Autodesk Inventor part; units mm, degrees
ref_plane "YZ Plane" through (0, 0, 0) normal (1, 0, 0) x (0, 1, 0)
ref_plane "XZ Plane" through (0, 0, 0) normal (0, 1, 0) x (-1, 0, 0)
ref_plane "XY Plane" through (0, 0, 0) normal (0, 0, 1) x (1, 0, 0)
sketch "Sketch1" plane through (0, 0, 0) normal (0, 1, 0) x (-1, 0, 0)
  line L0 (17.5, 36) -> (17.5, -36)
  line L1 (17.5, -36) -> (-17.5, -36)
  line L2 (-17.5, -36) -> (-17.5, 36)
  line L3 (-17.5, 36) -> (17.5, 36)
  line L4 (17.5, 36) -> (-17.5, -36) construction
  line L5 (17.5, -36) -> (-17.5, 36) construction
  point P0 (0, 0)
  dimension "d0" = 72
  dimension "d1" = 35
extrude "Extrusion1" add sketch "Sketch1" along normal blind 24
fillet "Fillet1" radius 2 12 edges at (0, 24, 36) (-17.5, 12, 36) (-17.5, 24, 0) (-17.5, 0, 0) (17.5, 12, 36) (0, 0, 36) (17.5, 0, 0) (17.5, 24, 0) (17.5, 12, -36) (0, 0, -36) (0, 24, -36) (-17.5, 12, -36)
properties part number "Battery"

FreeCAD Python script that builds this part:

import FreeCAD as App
import Part
import Sketcher
from FreeCAD import Vector


def add_polygon(sketch, points):
    """Adds a closed chain of lines whose ends are joined by coincident constraints."""
    first, n = sketch.GeometryCount, len(points)
    for a, b in zip(points, points[1:] + points[:1]):
        sketch.addGeometry(Part.LineSegment(App.Vector(*a, 0), App.Vector(*b, 0)), False)
    for i in range(n):
        sketch.addConstraint(Sketcher.Constraint("Coincident", first + i, 2, first + (i + 1) % n, 1))

doc = App.newDocument("Part")
body = doc.addObject("PartDesign::Body", "Body")

sketch1 = doc.addObject("Sketcher::SketchObject", "Sketch")
body.addObject(sketch1)
sketch1.AttachmentSupport = (doc.XZ_Plane, [""])
sketch1.MapMode = "FlatFace"
add_polygon(sketch1, [(-17.5, -36), (-17.5, 36), (17.5, 36), (17.5, -36)])
sketch1.addConstraint(Sketcher.Constraint("Vertical", 0))
sketch1.addConstraint(Sketcher.Constraint("Horizontal", 1))
sketch1.addConstraint(Sketcher.Constraint("Vertical", 2))
sketch1.addConstraint(Sketcher.Constraint("Horizontal", 3))
sketch1.addConstraint(Sketcher.Constraint("Symmetric", 0, 2, 2, 2, -1, 1))
sketch1.addConstraint(Sketcher.Constraint("DistanceX", 1, 1, 1, 2, 35.0))
sketch1.addConstraint(Sketcher.Constraint("DistanceY", 0, 1, 0, 2, 72.0))
pad1 = doc.addObject("PartDesign::Pad", "Pad")
body.addObject(pad1)
pad1.Profile = sketch1
pad1.Length = 24
pad1.Reversed = True
doc.recompute()

fillet = doc.addObject("PartDesign::Fillet", "Fillet")
body.addObject(fillet)
fillet.Base = (pad1, ["Edge1"])
fillet.UseAllEdges = True
fillet.Radius = 2

doc.recompute()
